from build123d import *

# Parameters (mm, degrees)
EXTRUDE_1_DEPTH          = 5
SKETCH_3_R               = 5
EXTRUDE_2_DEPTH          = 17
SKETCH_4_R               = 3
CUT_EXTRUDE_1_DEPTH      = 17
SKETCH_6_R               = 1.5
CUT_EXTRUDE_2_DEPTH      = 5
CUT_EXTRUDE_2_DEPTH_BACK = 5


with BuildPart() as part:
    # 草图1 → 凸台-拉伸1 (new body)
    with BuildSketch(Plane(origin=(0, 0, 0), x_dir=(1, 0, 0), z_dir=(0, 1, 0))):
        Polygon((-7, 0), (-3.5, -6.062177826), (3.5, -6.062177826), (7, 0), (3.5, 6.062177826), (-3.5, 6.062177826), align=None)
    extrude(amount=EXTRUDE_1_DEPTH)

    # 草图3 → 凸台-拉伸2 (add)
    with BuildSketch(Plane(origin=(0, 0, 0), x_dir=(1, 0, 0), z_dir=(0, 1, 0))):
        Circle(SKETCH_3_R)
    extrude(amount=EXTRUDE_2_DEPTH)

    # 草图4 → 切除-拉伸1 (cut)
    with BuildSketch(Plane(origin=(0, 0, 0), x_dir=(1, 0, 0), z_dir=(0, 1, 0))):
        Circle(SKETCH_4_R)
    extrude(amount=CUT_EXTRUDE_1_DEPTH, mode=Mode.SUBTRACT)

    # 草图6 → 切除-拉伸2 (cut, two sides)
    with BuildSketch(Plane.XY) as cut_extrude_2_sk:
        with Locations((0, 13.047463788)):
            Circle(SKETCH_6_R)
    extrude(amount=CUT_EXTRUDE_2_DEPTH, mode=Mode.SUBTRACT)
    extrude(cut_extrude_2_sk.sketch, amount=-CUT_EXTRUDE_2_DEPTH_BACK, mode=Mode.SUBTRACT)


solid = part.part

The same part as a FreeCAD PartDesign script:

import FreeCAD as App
import Part
import Sketcher

V = App.Vector
Q = App.Units.Quantity

doc = App.newDocument("Part")
params = doc.addObject("Spreadsheet::Sheet", "Params")
for row, (alias, value) in enumerate([
    ("sketch1_width", "7 mm"),
    ("sketch1_length", "7 mm"),
    ("pad1_length", "5 mm"),
    ("sketch2_diameter", "10 mm"),
    ("pad2_length", "17 mm"),
    ("sketch3_diameter", "6 mm"),
    ("pocket1_length", "17 mm"),
    ("sketch4_diameter", "3 mm"),
], start=1):
    params.set(f"A{row}", alias)
    params.set(f"B{row}", "=" + value)
    params.setAlias(f"B{row}", alias)

body = doc.addObject("PartDesign::Body", "Body")

sketch1 = body.newObject("Sketcher::SketchObject", "Sketch")
sketch1.AttachmentSupport = (doc.getObject("XZ_Plane"), [""])
sketch1.MapMode = "FlatFace"
sketch1.addGeometry([
    Part.LineSegment(V(-7, 0, 0), V(-3.5, 6.062178, 0)),
    Part.LineSegment(V(-3.5, 6.062178, 0), V(3.5, 6.062178, 0)),
    Part.LineSegment(V(3.5, 6.062178, 0), V(7, 0, 0)),
    Part.LineSegment(V(7, 0, 0), V(3.5, -6.062178, 0)),
    Part.LineSegment(V(3.5, -6.062178, 0), V(-3.5, -6.062178, 0)),
    Part.LineSegment(V(-3.5, -6.062178, 0), V(-7, 0, 0)),
], False)
sketch1.addConstraint([
    Sketcher.Constraint("Coincident", 0, 2, 1, 1),
    Sketcher.Constraint("Coincident", 1, 2, 2, 1),
    Sketcher.Constraint("Coincident", 2, 2, 3, 1),
    Sketcher.Constraint("Coincident", 3, 2, 4, 1),
    Sketcher.Constraint("Coincident", 4, 2, 5, 1),
    Sketcher.Constraint("Coincident", 5, 2, 0, 1),
    Sketcher.Constraint("Horizontal", 1),
    Sketcher.Constraint("Horizontal", 4),
    Sketcher.Constraint("Symmetric", 0, 2, 3, 2, -1, 1),
    Sketcher.Constraint("Symmetric", 2, 2, 5, 2, -1, 1),
    Sketcher.Constraint("PointOnObject", 2, 2, -1),
    Sketcher.Constraint("Parallel", 2, 5),
    Sketcher.Constraint("Vertical", 1, 2, 3, 2),
    Sketcher.Constraint("DistanceX", 1, 1, 1, 2, 7.0),
    Sketcher.Constraint("Angle", 0, Q("60 deg")),
    Sketcher.Constraint("Distance", 0, 7.0),
])
sketch1.setExpression("Constraints[13]", "Params.sketch1_width")
sketch1.setExpression("Constraints[15]", "Params.sketch1_length")
pad1 = body.newObject("PartDesign::Pad", "Pad")
pad1.Profile = sketch1
pad1.setExpression("Length", "Params.pad1_length")
pad1.Reversed = True

sketch2 = body.newObject("Sketcher::SketchObject", "Sketch001")
sketch2.AttachmentSupport = (doc.getObject("XZ_Plane"), [""])
sketch2.MapMode = "FlatFace"
sketch2.addGeometry(Part.Circle(V(0, 0, 0), V(0, 0, 1), 5), False)
sketch2.addConstraint([
    Sketcher.Constraint("Coincident", 0, 3, -1, 1),
    Sketcher.Constraint("Diameter", 0, 10.0),
])
sketch2.setExpression("Constraints[1]", "Params.sketch2_diameter")
pad2 = body.newObject("PartDesign::Pad", "Pad001")
pad2.Profile = sketch2
pad2.setExpression("Length", "Params.pad2_length")
pad2.Reversed = True

sketch3 = body.newObject("Sketcher::SketchObject", "Sketch002")
sketch3.AttachmentSupport = (doc.getObject("XZ_Plane"), [""])
sketch3.MapMode = "FlatFace"
sketch3.addGeometry(Part.Circle(V(0, 0, 0), V(0, 0, 1), 3), False)
sketch3.addConstraint([
    Sketcher.Constraint("Coincident", 0, 3, -1, 1),
    Sketcher.Constraint("Diameter", 0, 6.0),
])
sketch3.setExpression("Constraints[1]", "Params.sketch3_diameter")
pocket1 = body.newObject("PartDesign::Pocket", "Pocket")
pocket1.Profile = sketch3
pocket1.setExpression("Length", "Params.pocket1_length")

sketch4 = body.newObject("Sketcher::SketchObject", "Sketch003")
sketch4.AttachmentSupport = (doc.getObject("XY_Plane"), [""])
sketch4.MapMode = "FlatFace"
sketch4.addGeometry(Part.Circle(V(0, 13.047464, 0), V(0, 0, 1), 1.5), False)
sketch4.addConstraint([
    Sketcher.Constraint("PointOnObject", 0, 3, -2),
    Sketcher.Constraint("Diameter", 0, 3.0),
    Sketcher.Constraint("DistanceY", -1, 1, 0, 3, 13.047464),
])
sketch4.setExpression("Constraints[1]", "Params.sketch4_diameter")
pocket2 = body.newObject("PartDesign::Pocket", "Pocket001")
pocket2.Profile = sketch4
pocket2.Type = "ThroughAll"
pocket2.Midplane = True

doc.recompute()
